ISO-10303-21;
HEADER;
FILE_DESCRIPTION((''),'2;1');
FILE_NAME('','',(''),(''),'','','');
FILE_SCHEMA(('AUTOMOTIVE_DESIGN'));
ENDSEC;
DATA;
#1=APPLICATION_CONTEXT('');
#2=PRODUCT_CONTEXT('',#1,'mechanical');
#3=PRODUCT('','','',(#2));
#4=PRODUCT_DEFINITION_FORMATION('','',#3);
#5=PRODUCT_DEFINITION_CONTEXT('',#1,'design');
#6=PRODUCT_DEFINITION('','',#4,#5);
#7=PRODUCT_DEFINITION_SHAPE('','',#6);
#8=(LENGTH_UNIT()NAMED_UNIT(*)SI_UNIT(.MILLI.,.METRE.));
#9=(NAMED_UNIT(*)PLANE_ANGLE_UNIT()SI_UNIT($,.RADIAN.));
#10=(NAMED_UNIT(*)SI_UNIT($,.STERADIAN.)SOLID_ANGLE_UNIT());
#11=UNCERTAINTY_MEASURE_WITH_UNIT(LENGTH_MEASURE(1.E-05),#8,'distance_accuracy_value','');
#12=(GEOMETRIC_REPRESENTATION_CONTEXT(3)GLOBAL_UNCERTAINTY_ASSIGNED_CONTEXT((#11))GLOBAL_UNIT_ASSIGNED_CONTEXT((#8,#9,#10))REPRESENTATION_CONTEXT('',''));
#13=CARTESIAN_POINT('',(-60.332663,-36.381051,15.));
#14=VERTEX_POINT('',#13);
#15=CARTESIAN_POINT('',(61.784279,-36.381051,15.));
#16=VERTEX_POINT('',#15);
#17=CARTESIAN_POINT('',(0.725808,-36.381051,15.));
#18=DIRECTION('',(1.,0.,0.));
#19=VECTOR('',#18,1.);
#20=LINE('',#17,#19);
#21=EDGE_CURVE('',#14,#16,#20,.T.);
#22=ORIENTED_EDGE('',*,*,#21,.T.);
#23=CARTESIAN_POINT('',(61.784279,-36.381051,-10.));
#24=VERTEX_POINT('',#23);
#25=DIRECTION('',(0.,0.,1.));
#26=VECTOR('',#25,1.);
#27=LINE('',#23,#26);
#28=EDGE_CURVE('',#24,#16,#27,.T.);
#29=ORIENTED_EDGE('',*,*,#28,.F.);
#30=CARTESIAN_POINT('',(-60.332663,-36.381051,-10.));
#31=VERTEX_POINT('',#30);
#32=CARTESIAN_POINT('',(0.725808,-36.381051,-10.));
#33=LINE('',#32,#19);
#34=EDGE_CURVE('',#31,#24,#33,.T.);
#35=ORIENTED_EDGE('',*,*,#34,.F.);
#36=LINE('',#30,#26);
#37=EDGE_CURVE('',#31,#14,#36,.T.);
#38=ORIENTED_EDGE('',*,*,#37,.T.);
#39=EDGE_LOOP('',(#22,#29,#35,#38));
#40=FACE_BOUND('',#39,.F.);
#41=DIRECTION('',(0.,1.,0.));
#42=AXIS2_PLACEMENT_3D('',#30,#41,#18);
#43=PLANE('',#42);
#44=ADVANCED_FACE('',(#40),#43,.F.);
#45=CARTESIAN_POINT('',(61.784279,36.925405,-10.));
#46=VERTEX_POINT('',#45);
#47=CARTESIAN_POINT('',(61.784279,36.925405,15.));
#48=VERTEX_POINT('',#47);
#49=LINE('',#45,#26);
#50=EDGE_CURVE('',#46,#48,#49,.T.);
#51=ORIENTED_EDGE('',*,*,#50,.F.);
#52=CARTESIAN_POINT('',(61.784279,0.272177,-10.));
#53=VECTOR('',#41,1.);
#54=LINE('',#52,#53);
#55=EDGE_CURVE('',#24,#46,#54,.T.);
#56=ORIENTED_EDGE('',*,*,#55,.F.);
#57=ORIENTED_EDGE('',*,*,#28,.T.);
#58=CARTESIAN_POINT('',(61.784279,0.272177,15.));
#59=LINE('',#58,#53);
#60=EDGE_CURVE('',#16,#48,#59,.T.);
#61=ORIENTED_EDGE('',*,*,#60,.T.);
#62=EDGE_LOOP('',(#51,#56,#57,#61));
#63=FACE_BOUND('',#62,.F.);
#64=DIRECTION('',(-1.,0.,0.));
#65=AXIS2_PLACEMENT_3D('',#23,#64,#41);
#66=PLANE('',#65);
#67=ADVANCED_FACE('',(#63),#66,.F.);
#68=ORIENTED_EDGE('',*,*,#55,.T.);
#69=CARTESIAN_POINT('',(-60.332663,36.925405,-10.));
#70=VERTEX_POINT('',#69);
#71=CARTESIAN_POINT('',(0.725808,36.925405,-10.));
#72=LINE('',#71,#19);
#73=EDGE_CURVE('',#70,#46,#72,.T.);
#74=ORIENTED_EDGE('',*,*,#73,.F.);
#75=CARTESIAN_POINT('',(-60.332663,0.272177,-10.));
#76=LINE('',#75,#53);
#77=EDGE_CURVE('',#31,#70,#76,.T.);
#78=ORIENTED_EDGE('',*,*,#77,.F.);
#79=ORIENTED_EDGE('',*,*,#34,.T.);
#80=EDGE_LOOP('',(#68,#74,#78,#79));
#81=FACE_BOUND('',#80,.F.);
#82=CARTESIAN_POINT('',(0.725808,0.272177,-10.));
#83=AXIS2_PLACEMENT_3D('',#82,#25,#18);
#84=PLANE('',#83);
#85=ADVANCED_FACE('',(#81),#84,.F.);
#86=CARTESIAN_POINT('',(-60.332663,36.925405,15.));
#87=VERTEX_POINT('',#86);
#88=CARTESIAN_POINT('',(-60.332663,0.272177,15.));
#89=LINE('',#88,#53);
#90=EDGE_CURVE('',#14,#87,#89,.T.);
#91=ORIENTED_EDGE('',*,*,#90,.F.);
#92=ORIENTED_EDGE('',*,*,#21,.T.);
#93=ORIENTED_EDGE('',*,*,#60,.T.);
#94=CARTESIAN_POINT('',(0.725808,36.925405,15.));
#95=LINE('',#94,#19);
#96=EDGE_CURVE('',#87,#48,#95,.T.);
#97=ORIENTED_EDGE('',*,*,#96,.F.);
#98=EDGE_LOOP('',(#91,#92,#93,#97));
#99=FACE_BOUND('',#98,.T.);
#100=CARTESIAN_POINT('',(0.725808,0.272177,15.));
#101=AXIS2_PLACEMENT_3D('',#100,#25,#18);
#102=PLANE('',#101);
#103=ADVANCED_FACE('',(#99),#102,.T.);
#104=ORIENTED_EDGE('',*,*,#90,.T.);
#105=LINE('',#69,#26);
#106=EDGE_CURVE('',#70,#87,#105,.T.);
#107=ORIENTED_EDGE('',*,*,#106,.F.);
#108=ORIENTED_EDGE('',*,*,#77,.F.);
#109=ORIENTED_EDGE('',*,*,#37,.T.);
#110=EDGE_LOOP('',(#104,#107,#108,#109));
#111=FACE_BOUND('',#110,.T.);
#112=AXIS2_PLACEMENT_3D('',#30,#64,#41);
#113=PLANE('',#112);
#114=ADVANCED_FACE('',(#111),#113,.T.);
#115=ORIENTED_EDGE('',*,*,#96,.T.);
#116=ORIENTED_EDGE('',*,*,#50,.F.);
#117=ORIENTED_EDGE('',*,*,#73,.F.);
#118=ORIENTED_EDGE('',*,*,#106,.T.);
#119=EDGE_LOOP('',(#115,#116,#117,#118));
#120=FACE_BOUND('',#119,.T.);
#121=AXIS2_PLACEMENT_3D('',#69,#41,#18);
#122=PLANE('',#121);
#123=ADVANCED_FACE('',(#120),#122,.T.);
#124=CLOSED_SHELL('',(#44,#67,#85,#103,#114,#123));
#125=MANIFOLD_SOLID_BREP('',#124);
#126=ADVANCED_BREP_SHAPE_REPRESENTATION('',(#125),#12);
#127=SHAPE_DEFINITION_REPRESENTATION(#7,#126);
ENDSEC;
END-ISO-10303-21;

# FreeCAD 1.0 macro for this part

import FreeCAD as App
import Part
import Sketcher

V = App.Vector


def add_polygon(sketch, points):
    """Adds a closed chain of lines whose ends are joined by coincident constraints."""
    first, n = sketch.GeometryCount, len(points)
    for a, b in zip(points, points[1:] + points[:1]):
        sketch.addGeometry(Part.LineSegment(App.Vector(*a, 0), App.Vector(*b, 0)), False)
    for i in range(n):
        sketch.addConstraint(Sketcher.Constraint("Coincident", first + i, 2, first + (i + 1) % n, 1))

doc = App.newDocument("Part")
body = doc.addObject("PartDesign::Body", "Body")

sketch1 = body.newObject("Sketcher::SketchObject", "Sketch")
sketch1.AttachmentSupport = (doc.getObject("XY_Plane"), [""])
sketch1.MapMode = "FlatFace"
add_polygon(sketch1, [(-60, 37), (-60, -36), (62, -36), (62, 37)])
sketch1.addConstraint(Sketcher.Constraint("Vertical", 0))
sketch1.addConstraint(Sketcher.Constraint("Horizontal", 1))
sketch1.addConstraint(Sketcher.Constraint("Vertical", 2))
sketch1.addConstraint(Sketcher.Constraint("Horizontal", 3))
sketch1.addConstraint(Sketcher.Constraint("DistanceX", 1, 1, 1, 2, 122.116942))
sketch1.addConstraint(Sketcher.Constraint("DistanceY", 0, 2, 0, 1, 73.306456))
sketch1.addConstraint(Sketcher.Constraint("DistanceY", 0, 2, -1, 1, 36.381051))
sketch1.addConstraint(Sketcher.Constraint("DistanceX", -1, 1, 1, 2, 61.784279))
pad1 = body.newObject("PartDesign::Pad", "Pad")
pad1.Profile = sketch1
pad1.Length = 25
body2 = doc.addObject("PartDesign::Body", "Body001")
doc.recompute()

body.Placement = App.Placement(V(0, 0, -10), App.Rotation(V(0, 0, 1), 0))
boolean = body2.newObject("PartDesign::Boolean", "Boolean")
boolean.Type = "Fuse"
boolean.addObjects([body])

doc.recompute()
